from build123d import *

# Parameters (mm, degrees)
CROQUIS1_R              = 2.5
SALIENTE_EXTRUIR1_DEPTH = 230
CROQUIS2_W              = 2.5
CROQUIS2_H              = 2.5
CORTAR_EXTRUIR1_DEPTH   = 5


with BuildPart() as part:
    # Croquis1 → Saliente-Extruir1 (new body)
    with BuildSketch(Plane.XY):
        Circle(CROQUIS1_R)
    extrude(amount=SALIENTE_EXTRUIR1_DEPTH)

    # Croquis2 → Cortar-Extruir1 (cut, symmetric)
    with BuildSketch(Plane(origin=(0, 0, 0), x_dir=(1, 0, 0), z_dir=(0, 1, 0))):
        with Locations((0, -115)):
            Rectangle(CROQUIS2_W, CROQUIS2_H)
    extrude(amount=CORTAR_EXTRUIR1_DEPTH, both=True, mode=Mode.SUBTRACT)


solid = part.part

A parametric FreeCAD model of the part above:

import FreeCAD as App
import Part
import Sketcher
Q = App.Units.Quantity


def add_polygon(sketch, points):
    """Adds a closed chain of lines whose ends are joined by coincident constraints."""
    first, n = sketch.GeometryCount, len(points)
    for a, b in zip(points, points[1:] + points[:1]):
        sketch.addGeometry(Part.LineSegment(App.Vector(*a, 0), App.Vector(*b, 0)), False)
    for i in range(n):
        sketch.addConstraint(Sketcher.Constraint("Coincident", first + i, 2, first + (i + 1) % n, 1))

doc = App.newDocument("Part")
body = doc.addObject("PartDesign::Body", "Body")

# Sketch on XY plane
sketch1 = doc.addObject("Sketcher::SketchObject", "Sketch")
body.addObject(sketch1)
sketch1.AttachmentSupport = (doc.XY_Plane, [""])
sketch1.MapMode = "FlatFace"
sketch1.addGeometry(Part.Circle(App.Vector(0, 0, 0), App.Vector(0, 0, 1), 2.5), False)
sketch1.addConstraint([
    Sketcher.Constraint("Coincident", 0, 3, -1, 1),
    Sketcher.Constraint("Diameter", 0, Q("5 mm")),
])
pad1 = doc.addObject("PartDesign::Pad", "Pad")
body.addObject(pad1)
pad1.Profile = sketch1
pad1.Length = 230

# Sketch on XZ plane
sketch2 = doc.addObject("Sketcher::SketchObject", "Sketch001")
body.addObject(sketch2)
sketch2.AttachmentSupport = (doc.XZ_Plane, [""])
sketch2.MapMode = "FlatFace"
add_polygon(sketch2, [(-1.2, 113.8), (-1.2, 116.2), (1.2, 116.2), (1.2, 113.8)])  # lines 0-3
sketch2.addConstraint([
    Sketcher.Constraint("Vertical", 0),
    Sketcher.Constraint("Horizontal", 1),
    Sketcher.Constraint("Vertical", 2),
    Sketcher.Constraint("Horizontal", 3),
    Sketcher.Constraint("Equal", 3, 0),
    Sketcher.Constraint("DistanceX", 1, 1, 1, 2, Q("2.5 mm")),
    Sketcher.Constraint("DistanceX", 0, 2, -1, 1, Q("1.25 mm")),
    Sketcher.Constraint("DistanceY", -1, 1, 0, 2, Q("116.25 mm")),
])
pocket1 = doc.addObject("PartDesign::Pocket", "Pocket")
body.addObject(pocket1)
pocket1.Profile = sketch2
pocket1.Length = 10
pocket1.Midplane = True

doc.recompute()
